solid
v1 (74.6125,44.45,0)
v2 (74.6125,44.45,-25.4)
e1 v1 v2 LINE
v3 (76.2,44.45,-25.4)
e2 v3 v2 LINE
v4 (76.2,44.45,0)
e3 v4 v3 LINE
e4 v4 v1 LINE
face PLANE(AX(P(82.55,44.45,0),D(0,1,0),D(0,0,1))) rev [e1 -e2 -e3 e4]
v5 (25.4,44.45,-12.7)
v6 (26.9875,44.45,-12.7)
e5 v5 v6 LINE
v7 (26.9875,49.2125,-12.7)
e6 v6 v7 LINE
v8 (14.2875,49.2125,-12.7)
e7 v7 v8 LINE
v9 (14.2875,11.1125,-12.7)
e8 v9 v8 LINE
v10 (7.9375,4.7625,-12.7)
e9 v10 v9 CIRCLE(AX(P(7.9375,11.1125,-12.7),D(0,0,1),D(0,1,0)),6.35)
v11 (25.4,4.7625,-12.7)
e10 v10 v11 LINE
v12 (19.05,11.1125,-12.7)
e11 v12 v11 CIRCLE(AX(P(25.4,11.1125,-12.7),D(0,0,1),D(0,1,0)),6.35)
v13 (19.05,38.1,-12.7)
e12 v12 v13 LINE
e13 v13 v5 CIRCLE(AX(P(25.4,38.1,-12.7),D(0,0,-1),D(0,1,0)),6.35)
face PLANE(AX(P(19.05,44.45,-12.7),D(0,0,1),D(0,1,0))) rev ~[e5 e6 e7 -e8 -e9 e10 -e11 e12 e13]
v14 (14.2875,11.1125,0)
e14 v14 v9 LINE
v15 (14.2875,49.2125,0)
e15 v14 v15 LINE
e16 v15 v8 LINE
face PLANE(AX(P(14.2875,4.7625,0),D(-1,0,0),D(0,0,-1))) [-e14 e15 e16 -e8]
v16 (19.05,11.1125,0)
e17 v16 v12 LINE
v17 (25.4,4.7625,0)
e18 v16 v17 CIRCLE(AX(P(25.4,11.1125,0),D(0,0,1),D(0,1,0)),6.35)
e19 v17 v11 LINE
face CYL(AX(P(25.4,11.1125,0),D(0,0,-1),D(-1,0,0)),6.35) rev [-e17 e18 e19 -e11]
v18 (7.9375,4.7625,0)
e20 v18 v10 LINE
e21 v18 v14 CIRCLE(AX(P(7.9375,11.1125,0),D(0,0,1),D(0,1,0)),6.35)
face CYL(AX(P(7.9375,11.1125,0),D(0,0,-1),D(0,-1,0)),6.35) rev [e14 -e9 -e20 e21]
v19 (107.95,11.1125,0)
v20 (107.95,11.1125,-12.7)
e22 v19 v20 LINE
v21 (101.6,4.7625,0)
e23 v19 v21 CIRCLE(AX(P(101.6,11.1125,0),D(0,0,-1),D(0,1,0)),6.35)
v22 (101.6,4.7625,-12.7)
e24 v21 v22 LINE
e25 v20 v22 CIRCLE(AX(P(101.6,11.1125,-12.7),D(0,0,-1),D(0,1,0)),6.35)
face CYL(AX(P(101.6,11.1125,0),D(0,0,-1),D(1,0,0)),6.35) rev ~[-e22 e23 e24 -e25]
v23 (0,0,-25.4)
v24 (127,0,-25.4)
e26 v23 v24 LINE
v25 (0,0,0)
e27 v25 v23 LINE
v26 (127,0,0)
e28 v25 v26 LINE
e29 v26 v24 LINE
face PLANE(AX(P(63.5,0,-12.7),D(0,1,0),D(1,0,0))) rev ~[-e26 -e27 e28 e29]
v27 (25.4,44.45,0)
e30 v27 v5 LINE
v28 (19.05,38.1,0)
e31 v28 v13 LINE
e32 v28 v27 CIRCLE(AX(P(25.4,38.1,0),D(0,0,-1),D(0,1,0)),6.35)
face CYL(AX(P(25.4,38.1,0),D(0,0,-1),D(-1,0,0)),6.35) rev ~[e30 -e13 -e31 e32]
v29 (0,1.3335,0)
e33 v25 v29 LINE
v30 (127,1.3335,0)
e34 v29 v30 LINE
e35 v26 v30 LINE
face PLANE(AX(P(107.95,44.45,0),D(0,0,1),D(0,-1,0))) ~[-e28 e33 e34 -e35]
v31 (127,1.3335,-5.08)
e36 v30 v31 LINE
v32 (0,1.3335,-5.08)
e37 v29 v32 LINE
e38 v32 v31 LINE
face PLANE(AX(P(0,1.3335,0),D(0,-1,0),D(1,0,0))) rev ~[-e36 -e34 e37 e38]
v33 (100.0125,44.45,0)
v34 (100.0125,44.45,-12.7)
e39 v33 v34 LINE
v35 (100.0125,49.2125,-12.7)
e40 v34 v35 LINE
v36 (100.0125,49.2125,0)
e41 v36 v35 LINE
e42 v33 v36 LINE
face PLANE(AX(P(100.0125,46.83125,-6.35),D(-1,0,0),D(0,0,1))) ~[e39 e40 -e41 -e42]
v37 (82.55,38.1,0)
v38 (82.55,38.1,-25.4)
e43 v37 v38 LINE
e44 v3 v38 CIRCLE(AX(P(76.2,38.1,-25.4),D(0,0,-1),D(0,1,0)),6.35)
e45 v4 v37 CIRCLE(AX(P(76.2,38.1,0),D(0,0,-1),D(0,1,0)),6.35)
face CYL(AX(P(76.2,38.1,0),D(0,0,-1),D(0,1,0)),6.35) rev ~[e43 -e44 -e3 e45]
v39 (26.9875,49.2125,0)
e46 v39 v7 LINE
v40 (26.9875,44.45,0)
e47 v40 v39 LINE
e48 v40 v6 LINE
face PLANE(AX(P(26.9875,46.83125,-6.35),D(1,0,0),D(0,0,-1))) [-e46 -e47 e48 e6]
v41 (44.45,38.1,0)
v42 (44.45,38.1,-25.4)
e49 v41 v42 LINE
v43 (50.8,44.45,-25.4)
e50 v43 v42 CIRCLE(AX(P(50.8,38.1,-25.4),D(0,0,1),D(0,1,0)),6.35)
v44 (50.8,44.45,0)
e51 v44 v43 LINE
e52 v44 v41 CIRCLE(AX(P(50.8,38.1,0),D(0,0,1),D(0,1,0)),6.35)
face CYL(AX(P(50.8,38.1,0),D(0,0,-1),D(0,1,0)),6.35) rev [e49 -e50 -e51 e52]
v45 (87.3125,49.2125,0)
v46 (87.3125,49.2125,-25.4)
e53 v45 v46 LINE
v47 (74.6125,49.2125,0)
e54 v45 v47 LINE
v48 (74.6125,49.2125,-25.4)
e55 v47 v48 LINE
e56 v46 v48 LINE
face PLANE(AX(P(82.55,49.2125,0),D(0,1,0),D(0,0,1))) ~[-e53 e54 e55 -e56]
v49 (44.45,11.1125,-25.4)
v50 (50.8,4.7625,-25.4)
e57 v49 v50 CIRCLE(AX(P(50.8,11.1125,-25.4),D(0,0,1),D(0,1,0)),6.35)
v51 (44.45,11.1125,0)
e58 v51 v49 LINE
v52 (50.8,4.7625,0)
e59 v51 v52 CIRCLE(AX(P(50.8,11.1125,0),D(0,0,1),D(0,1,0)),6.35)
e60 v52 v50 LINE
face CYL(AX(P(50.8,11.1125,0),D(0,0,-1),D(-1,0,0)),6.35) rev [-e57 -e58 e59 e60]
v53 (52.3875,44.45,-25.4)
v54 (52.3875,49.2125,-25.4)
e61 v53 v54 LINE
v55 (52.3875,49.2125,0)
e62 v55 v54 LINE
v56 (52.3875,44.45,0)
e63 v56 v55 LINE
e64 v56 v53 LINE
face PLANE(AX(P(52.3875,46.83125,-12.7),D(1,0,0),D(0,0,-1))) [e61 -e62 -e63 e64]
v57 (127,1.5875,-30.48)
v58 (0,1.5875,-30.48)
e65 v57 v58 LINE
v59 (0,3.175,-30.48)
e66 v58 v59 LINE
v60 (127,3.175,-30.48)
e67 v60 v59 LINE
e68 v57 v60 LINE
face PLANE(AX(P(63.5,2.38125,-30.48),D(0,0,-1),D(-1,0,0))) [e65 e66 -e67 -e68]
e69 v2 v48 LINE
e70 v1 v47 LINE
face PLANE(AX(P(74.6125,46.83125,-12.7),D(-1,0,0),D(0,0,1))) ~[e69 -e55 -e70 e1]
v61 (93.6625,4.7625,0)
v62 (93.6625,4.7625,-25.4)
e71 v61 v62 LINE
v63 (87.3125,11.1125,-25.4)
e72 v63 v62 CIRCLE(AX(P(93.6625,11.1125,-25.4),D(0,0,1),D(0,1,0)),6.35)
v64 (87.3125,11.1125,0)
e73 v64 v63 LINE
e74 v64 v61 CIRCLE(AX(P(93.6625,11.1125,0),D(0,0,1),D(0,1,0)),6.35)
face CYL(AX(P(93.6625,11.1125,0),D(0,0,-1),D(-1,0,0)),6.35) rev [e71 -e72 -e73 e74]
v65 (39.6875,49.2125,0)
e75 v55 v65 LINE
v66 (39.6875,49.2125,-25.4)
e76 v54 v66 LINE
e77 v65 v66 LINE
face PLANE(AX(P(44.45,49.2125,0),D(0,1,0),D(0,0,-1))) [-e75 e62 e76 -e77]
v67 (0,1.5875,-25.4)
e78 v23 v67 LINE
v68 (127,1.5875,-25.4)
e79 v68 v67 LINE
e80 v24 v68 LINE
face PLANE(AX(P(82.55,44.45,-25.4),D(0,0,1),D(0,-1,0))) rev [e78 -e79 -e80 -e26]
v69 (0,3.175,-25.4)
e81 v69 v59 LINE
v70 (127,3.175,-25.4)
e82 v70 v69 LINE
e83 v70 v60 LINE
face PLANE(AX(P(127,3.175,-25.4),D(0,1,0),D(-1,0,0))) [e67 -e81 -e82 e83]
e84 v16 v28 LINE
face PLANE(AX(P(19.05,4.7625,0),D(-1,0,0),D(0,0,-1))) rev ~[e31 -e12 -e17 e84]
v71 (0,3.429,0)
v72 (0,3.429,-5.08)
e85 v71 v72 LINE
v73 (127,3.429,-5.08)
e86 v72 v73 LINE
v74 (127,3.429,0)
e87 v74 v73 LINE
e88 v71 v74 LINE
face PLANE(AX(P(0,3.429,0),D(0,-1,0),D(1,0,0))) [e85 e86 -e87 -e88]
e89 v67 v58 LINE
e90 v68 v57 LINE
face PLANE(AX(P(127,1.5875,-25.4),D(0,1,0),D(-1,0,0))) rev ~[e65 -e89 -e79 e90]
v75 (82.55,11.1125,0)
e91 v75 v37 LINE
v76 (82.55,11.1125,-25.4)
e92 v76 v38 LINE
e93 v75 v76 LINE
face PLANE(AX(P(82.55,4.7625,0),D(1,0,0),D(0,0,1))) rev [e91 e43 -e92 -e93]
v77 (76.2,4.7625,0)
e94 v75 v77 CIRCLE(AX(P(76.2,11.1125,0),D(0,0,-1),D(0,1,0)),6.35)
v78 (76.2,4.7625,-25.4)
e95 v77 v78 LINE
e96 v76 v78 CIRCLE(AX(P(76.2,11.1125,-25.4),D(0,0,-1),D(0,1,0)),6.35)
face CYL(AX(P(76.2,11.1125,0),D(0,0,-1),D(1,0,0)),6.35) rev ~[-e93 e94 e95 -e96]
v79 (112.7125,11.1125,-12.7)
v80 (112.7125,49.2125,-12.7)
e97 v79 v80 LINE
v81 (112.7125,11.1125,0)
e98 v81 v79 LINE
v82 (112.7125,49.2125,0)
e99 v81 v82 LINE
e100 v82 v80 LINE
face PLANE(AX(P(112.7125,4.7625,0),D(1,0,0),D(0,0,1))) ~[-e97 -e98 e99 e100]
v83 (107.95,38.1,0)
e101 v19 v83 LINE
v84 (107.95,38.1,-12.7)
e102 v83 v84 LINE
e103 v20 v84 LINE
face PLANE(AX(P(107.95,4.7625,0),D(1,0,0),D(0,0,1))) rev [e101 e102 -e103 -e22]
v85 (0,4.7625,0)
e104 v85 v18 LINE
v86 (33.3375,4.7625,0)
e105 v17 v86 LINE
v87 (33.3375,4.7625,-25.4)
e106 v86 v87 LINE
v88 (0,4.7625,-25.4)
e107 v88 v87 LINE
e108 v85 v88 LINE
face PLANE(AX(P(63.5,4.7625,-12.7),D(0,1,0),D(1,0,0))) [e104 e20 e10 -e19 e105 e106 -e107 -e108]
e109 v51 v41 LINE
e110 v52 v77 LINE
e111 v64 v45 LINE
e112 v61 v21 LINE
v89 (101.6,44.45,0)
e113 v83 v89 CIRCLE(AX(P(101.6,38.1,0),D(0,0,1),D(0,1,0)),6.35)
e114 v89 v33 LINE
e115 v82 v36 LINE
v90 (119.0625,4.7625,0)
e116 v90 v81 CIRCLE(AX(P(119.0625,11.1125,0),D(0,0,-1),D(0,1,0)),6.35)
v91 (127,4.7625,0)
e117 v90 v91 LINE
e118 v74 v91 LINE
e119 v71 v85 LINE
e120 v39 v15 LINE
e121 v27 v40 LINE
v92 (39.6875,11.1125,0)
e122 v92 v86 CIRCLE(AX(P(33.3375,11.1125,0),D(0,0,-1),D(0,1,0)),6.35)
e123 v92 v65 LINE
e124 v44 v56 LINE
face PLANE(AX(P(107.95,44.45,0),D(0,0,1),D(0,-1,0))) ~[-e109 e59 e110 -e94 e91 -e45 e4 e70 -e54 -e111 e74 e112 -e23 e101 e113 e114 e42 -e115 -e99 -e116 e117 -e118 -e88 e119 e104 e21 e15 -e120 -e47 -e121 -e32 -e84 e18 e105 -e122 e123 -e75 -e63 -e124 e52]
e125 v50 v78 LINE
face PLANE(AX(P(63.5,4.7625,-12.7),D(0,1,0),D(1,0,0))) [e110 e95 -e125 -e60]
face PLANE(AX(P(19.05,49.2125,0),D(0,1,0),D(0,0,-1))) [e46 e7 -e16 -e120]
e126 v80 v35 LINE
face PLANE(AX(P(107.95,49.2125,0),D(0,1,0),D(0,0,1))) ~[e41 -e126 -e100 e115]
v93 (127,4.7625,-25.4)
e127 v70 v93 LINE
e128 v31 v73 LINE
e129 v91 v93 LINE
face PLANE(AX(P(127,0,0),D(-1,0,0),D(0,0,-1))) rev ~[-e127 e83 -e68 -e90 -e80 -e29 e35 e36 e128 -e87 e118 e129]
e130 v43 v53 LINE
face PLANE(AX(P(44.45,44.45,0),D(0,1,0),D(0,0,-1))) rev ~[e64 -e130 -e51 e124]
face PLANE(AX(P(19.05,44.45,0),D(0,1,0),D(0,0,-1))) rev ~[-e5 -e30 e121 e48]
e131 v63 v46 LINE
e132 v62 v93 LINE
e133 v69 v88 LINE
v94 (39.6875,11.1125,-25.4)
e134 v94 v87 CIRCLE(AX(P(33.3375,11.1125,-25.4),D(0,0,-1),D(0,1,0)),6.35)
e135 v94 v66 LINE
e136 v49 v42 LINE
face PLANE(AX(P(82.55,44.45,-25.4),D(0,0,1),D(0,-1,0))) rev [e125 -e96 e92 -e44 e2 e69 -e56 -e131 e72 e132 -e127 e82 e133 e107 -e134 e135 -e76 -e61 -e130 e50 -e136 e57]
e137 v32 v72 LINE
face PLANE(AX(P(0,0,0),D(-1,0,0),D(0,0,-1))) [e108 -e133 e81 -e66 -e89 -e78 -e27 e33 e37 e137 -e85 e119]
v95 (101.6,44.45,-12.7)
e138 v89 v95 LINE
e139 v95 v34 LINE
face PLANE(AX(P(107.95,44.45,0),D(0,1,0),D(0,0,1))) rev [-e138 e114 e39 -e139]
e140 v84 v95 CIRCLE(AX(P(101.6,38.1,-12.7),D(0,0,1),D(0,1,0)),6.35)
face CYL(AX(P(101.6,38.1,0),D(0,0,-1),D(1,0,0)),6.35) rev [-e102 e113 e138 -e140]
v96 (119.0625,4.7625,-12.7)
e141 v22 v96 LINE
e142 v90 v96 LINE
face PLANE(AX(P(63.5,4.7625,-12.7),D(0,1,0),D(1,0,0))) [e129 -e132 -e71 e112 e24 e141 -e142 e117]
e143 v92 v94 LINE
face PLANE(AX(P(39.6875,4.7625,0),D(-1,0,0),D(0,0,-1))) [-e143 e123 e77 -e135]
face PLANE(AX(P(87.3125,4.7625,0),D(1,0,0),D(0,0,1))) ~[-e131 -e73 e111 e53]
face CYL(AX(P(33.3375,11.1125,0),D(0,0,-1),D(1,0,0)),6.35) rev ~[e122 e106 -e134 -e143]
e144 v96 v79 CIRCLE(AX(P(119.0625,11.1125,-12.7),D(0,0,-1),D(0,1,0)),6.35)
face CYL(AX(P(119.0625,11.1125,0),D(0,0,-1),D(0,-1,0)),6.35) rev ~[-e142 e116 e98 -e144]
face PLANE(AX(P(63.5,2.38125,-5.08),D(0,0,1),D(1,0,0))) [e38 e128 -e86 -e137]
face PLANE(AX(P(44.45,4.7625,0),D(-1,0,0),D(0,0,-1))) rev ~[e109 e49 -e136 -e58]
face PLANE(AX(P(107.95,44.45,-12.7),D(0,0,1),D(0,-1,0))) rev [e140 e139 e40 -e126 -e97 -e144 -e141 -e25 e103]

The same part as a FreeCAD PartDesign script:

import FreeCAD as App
import Part
import Sketcher

V = App.Vector
Q = App.Units.Quantity


def edges_at(feature, points):
    """Names of the edges that pass closest to the given points."""
    edges = feature.Shape.Edges
    near = lambda p: min(range(len(edges)), key=lambda i: edges[i].distToShape(Part.Vertex(*p))[0])
    return sorted({f"Edge{near(p) + 1}" for p in points})

doc = App.newDocument("Part")
body = doc.addObject("PartDesign::Body", "Body")

# Sketch on XZ plane
sketch1 = body.newObject("Sketcher::SketchObject", "Sketch")
sketch1.AttachmentSupport = (doc.getObject("XZ_Plane"), [""])
sketch1.MapMode = "FlatFace"
sketch1.addGeometry([
    Part.LineSegment(V(0, -25, 0), V(0, 0, 0)),
    Part.LineSegment(V(0, 0, 0), V(127, 0, 0)),
    Part.LineSegment(V(127, 0, 0), V(127, -25, 0)),
    Part.LineSegment(V(127, -25, 0), V(0, -25, 0)),
], False)
sketch1.addConstraint([
    Sketcher.Constraint("Coincident", 0, 2, 1, 1),
    Sketcher.Constraint("Coincident", 1, 2, 2, 1),
    Sketcher.Constraint("Coincident", 2, 2, 3, 1),
    Sketcher.Constraint("Coincident", 3, 2, 0, 1),
    Sketcher.Constraint("Vertical", 0),
    Sketcher.Constraint("Horizontal", 1),
    Sketcher.Constraint("Vertical", 2),
    Sketcher.Constraint("Horizontal", 3),
    Sketcher.Constraint("Coincident", 0, 2, -1, 1),
    Sketcher.Constraint("DistanceX", 1, 1, 1, 2, Q("5 in")),
    Sketcher.Constraint("DistanceY", 0, 1, 0, 2, Q("1 in")),
])
pad1 = body.newObject("PartDesign::Pad", "Pad")
pad1.Profile = sketch1
pad1.Length = Q("0.1875 in")
pad1.Reversed = True

# Sketch on XZ plane
sketch2 = body.newObject("Sketcher::SketchObject", "Sketch001")
sketch2.AttachmentSupport = (doc.getObject("XZ_Plane"), [""])
sketch2.MapMode = "FlatFace"
sketch2.AttachmentOffset = App.Placement(V(0, 0, -0.1875 * 25.4), App.Rotation())
sketch2.addGeometry([
    Part.LineSegment(V(39.7, -25.4, 0), V(39.7, 0, 0)),  # 0
    Part.LineSegment(V(39.7, 0, 0), V(44.5, 0, 0)),  # 1
    Part.LineSegment(V(44.5, 0, 0), V(44.5, -25.4, 0)),  # 2
    Part.LineSegment(V(44.5, -25.4, 0), V(39.7, -25.4, 0)),  # 3
    Part.LineSegment(V(14.3, -12.7, 0), V(14.3, 0, 0)),  # 4
    Part.LineSegment(V(14.3, 0, 0), V(19.1, 0, 0)),  # 5
    Part.LineSegment(V(19.1, 0, 0), V(19.1, -12.7, 0)),  # 6
    Part.LineSegment(V(19.1, -12.7, 0), V(14.3, -12.7, 0)),  # 7
], False)
sketch2.addConstraint([
    Sketcher.Constraint("Coincident", 0, 2, 1, 1),
    Sketcher.Constraint("Coincident", 1, 2, 2, 1),
    Sketcher.Constraint("Coincident", 2, 2, 3, 1),
    Sketcher.Constraint("Coincident", 3, 2, 0, 1),
    Sketcher.Constraint("Coincident", 4, 2, 5, 1),
    Sketcher.Constraint("Coincident", 5, 2, 6, 1),
    Sketcher.Constraint("Coincident", 6, 2, 7, 1),
    Sketcher.Constraint("Coincident", 7, 2, 4, 1),
    Sketcher.Constraint("Vertical", 0),
    Sketcher.Constraint("Horizontal", 1),
    Sketcher.Constraint("Vertical", 2),
    Sketcher.Constraint("Horizontal", 3),
    Sketcher.Constraint("Vertical", 4),
    Sketcher.Constraint("Horizontal", 5),
    Sketcher.Constraint("Vertical", 6),
    Sketcher.Constraint("Horizontal", 7),
    Sketcher.Constraint("PointOnObject", 0, 2, -1),
    Sketcher.Constraint("PointOnObject", 4, 2, -1),
    Sketcher.Constraint("Equal", 3, 5),
    Sketcher.Constraint("DistanceY", 0, 1, 0, 2, Q("1 in")),
    Sketcher.Constraint("DistanceY", 4, 1, 4, 2, Q("0.5 in")),
    Sketcher.Constraint("DistanceX", 4, 2, 0, 2, Q("1 in")),
    Sketcher.Constraint("DistanceX", 1, 1, 1, 2, Q("0.1875 in")),
    Sketcher.Constraint("DistanceX", -1, 1, 1, 2, Q("1.75 in")),
])
pad2 = body.newObject("PartDesign::Pad", "Pad001")
pad2.Profile = sketch2
pad2.Length = Q("1.75 in")
pad2.Reversed = True

# Sketch on YZ plane
sketch3 = body.newObject("Sketcher::SketchObject", "Sketch002")
sketch3.AttachmentSupport = (doc.getObject("YZ_Plane"), [""])
sketch3.MapMode = "FlatFace"
sketch3.AttachmentOffset = App.Placement(V(0, 0, 1.75 * 25.4), App.Rotation())
sketch3.addGeometry([
    Part.LineSegment(V(49.2, 0, 0), V(44.5, 0, 0)),
    Part.LineSegment(V(44.5, 0, 0), V(44.5, -25.4, 0)),
    Part.LineSegment(V(44.5, -25.4, 0), V(49.2, -25.4, 0)),
    Part.LineSegment(V(49.2, -25.4, 0), V(49.2, 0, 0)),
], False)
sketch3.addConstraint([
    Sketcher.Constraint("Coincident", 0, 2, 1, 1),
    Sketcher.Constraint("Coincident", 1, 2, 2, 1),
    Sketcher.Constraint("Coincident", 2, 2, 3, 1),
    Sketcher.Constraint("Coincident", 3, 2, 0, 1),
    Sketcher.Constraint("Horizontal", 0),
    Sketcher.Constraint("Vertical", 1),
    Sketcher.Constraint("Horizontal", 2),
    Sketcher.Constraint("Vertical", 3),
    Sketcher.Constraint("PointOnObject", 0, 2, -1),
    Sketcher.Constraint("DistanceY", 1, 2, 1, 1, Q("1 in")),
    Sketcher.Constraint("DistanceX", 0, 2, 0, 1, Q("0.1875 in")),
    Sketcher.Constraint("DistanceX", -1, 1, 0, 2, Q("1.75 in")),
])
pad3 = body.newObject("PartDesign::Pad", "Pad002")
pad3.Profile = sketch3
pad3.Length = Q("0.3125 in")

# Sketch on YZ plane
sketch4 = body.newObject("Sketcher::SketchObject", "Sketch003")
sketch4.AttachmentSupport = (doc.getObject("YZ_Plane"), [""])
sketch4.MapMode = "FlatFace"
sketch4.AttachmentOffset = App.Placement(V(0, 0, 0.75 * 25.4), App.Rotation())
sketch4.addGeometry([
    Part.LineSegment(V(49.2, 0, 0), V(44.5, 0, 0)),
    Part.LineSegment(V(44.5, 0, 0), V(44.5, -12.7, 0)),
    Part.LineSegment(V(44.5, -12.7, 0), V(49.2, -12.7, 0)),
    Part.LineSegment(V(49.2, -12.7, 0), V(49.2, 0, 0)),
], False)
sketch4.addConstraint([
    Sketcher.Constraint("Coincident", 0, 2, 1, 1),
    Sketcher.Constraint("Coincident", 1, 2, 2, 1),
    Sketcher.Constraint("Coincident", 2, 2, 3, 1),
    Sketcher.Constraint("Coincident", 3, 2, 0, 1),
    Sketcher.Constraint("Horizontal", 0),
    Sketcher.Constraint("Vertical", 1),
    Sketcher.Constraint("Horizontal", 2),
    Sketcher.Constraint("Vertical", 3),
    Sketcher.Constraint("PointOnObject", 0, 2, -1),
    Sketcher.Constraint("DistanceY", 1, 2, 1, 1, Q("0.5 in")),
    Sketcher.Constraint("DistanceX", 0, 2, 0, 1, Q("0.1875 in")),
    Sketcher.Constraint("DistanceX", -1, 1, 0, 2, Q("1.75 in")),
])
pad4 = body.newObject("PartDesign::Pad", "Pad003")
pad4.Profile = sketch4
pad4.Length = Q("0.3125 in")
doc.recompute()

fillet = body.newObject("PartDesign::Fillet", "Fillet")
fillet.Base = (pad4, edges_at(pad4, [
    (39.688, 4.763, -12.7),
    (44.45, 4.763, -12.7),
    (19.05, 4.763, -6.35),
    (14.287, 4.763, -6.35),
    (44.45, 44.45, -12.7),
    (19.05, 44.45, -6.35),
]))
fillet.Radius = Q("0.25 in")
doc.recompute()

datumplane = body.newObject("PartDesign::Plane", "DatumPlane")
datumplane.AttachmentSupport = (doc.getObject("YZ_Plane"), [""])
datumplane.MapMode = "FlatFace"
datumplane.AttachmentOffset = App.Placement(V(0, 0, 2.5 * 25.4), App.Rotation())
mirrored = body.newObject("PartDesign::Mirrored", "Mirrored")
mirrored.Originals = [pad2, pad3, pad4]
mirrored.MirrorPlane = (datumplane, [""])
body.Tip = mirrored
doc.recompute()

fillet2 = body.newObject("PartDesign::Fillet", "Fillet001")
fillet2.Base = (mirrored, edges_at(mirrored, [
    (87.312, 4.763, -12.7),
    (82.55, 4.763, -12.7),
    (107.95, 4.763, -6.35),
    (112.713, 4.763, -6.35),
    (82.55, 44.45, -12.7),
    (107.95, 44.45, -6.35),
]))
fillet2.Radius = Q("0.25 in")

# Sketch on XY plane
sketch5 = body.newObject("Sketcher::SketchObject", "Sketch004")
sketch5.AttachmentSupport = (doc.getObject("XY_Plane"), [""])
sketch5.MapMode = "FlatFace"
sketch5.addGeometry([
    Part.LineSegment(V(0, 3.4, 0), V(0, 1.3, 0)),
    Part.LineSegment(V(0, 1.3, 0), V(127, 1.3, 0)),
    Part.LineSegment(V(127, 1.3, 0), V(127, 3.4, 0)),
    Part.LineSegment(V(127, 3.4, 0), V(0, 3.4, 0)),
], False)
sketch5.addConstraint([
    Sketcher.Constraint("Coincident", 0, 2, 1, 1),
    Sketcher.Constraint("Coincident", 1, 2, 2, 1),
    Sketcher.Constraint("Coincident", 2, 2, 3, 1),
    Sketcher.Constraint("Coincident", 3, 2, 0, 1),
    Sketcher.Constraint("Vertical", 0),
    Sketcher.Constraint("Horizontal", 1),
    Sketcher.Constraint("Vertical", 2),
    Sketcher.Constraint("Horizontal", 3),
    Sketcher.Constraint("PointOnObject", 0, 2, -2),
    Sketcher.Constraint("DistanceX", 1, 1, 1, 2, Q("5 in")),
    Sketcher.Constraint("DistanceY", 0, 2, 0, 1, Q("0.0825 in")),
    Sketcher.Constraint("DistanceY", -1, 1, 2, 2, Q("0.135 in")),
])
pocket1 = body.newObject("PartDesign::Pocket", "Pocket")
pocket1.Profile = sketch5
pocket1.Length = Q("0.2 in")

# Sketch on XY plane
sketch6 = body.newObject("Sketcher::SketchObject", "Sketch005")
sketch6.AttachmentSupport = (doc.getObject("XY_Plane"), [""])
sketch6.MapMode = "FlatFace"
sketch6.AttachmentOffset = App.Placement(V(0, 0, -1 * 25.4), App.Rotation())
sketch6.addGeometry([
    Part.LineSegment(V(127, 3.2, 0), V(127, 1.6, 0)),
    Part.LineSegment(V(127, 1.6, 0), V(0, 1.6, 0)),
    Part.LineSegment(V(0, 1.6, 0), V(0, 3.2, 0)),
    Part.LineSegment(V(0, 3.2, 0), V(127, 3.2, 0)),
], False)
sketch6.addConstraint([
    Sketcher.Constraint("Coincident", 0, 2, 1, 1),
    Sketcher.Constraint("Coincident", 1, 2, 2, 1),
    Sketcher.Constraint("Coincident", 2, 2, 3, 1),
    Sketcher.Constraint("Coincident", 3, 2, 0, 1),
    Sketcher.Constraint("Vertical", 0),
    Sketcher.Constraint("Horizontal", 1),
    Sketcher.Constraint("Vertical", 2),
    Sketcher.Constraint("Horizontal", 3),
    Sketcher.Constraint("PointOnObject", 1, 2, -2),
    Sketcher.Constraint("DistanceX", 1, 2, 1, 1, Q("5 in")),
    Sketcher.Constraint("DistanceY", 0, 2, 0, 1, Q("0.0625 in")),
    Sketcher.Constraint("DistanceY", -1, 1, 0, 2, Q("0.0625 in")),
])
pad5 = body.newObject("PartDesign::Pad", "Pad004")
pad5.Profile = sketch6
pad5.Length = Q("0.2 in")
pad5.Reversed = True

doc.recompute()
